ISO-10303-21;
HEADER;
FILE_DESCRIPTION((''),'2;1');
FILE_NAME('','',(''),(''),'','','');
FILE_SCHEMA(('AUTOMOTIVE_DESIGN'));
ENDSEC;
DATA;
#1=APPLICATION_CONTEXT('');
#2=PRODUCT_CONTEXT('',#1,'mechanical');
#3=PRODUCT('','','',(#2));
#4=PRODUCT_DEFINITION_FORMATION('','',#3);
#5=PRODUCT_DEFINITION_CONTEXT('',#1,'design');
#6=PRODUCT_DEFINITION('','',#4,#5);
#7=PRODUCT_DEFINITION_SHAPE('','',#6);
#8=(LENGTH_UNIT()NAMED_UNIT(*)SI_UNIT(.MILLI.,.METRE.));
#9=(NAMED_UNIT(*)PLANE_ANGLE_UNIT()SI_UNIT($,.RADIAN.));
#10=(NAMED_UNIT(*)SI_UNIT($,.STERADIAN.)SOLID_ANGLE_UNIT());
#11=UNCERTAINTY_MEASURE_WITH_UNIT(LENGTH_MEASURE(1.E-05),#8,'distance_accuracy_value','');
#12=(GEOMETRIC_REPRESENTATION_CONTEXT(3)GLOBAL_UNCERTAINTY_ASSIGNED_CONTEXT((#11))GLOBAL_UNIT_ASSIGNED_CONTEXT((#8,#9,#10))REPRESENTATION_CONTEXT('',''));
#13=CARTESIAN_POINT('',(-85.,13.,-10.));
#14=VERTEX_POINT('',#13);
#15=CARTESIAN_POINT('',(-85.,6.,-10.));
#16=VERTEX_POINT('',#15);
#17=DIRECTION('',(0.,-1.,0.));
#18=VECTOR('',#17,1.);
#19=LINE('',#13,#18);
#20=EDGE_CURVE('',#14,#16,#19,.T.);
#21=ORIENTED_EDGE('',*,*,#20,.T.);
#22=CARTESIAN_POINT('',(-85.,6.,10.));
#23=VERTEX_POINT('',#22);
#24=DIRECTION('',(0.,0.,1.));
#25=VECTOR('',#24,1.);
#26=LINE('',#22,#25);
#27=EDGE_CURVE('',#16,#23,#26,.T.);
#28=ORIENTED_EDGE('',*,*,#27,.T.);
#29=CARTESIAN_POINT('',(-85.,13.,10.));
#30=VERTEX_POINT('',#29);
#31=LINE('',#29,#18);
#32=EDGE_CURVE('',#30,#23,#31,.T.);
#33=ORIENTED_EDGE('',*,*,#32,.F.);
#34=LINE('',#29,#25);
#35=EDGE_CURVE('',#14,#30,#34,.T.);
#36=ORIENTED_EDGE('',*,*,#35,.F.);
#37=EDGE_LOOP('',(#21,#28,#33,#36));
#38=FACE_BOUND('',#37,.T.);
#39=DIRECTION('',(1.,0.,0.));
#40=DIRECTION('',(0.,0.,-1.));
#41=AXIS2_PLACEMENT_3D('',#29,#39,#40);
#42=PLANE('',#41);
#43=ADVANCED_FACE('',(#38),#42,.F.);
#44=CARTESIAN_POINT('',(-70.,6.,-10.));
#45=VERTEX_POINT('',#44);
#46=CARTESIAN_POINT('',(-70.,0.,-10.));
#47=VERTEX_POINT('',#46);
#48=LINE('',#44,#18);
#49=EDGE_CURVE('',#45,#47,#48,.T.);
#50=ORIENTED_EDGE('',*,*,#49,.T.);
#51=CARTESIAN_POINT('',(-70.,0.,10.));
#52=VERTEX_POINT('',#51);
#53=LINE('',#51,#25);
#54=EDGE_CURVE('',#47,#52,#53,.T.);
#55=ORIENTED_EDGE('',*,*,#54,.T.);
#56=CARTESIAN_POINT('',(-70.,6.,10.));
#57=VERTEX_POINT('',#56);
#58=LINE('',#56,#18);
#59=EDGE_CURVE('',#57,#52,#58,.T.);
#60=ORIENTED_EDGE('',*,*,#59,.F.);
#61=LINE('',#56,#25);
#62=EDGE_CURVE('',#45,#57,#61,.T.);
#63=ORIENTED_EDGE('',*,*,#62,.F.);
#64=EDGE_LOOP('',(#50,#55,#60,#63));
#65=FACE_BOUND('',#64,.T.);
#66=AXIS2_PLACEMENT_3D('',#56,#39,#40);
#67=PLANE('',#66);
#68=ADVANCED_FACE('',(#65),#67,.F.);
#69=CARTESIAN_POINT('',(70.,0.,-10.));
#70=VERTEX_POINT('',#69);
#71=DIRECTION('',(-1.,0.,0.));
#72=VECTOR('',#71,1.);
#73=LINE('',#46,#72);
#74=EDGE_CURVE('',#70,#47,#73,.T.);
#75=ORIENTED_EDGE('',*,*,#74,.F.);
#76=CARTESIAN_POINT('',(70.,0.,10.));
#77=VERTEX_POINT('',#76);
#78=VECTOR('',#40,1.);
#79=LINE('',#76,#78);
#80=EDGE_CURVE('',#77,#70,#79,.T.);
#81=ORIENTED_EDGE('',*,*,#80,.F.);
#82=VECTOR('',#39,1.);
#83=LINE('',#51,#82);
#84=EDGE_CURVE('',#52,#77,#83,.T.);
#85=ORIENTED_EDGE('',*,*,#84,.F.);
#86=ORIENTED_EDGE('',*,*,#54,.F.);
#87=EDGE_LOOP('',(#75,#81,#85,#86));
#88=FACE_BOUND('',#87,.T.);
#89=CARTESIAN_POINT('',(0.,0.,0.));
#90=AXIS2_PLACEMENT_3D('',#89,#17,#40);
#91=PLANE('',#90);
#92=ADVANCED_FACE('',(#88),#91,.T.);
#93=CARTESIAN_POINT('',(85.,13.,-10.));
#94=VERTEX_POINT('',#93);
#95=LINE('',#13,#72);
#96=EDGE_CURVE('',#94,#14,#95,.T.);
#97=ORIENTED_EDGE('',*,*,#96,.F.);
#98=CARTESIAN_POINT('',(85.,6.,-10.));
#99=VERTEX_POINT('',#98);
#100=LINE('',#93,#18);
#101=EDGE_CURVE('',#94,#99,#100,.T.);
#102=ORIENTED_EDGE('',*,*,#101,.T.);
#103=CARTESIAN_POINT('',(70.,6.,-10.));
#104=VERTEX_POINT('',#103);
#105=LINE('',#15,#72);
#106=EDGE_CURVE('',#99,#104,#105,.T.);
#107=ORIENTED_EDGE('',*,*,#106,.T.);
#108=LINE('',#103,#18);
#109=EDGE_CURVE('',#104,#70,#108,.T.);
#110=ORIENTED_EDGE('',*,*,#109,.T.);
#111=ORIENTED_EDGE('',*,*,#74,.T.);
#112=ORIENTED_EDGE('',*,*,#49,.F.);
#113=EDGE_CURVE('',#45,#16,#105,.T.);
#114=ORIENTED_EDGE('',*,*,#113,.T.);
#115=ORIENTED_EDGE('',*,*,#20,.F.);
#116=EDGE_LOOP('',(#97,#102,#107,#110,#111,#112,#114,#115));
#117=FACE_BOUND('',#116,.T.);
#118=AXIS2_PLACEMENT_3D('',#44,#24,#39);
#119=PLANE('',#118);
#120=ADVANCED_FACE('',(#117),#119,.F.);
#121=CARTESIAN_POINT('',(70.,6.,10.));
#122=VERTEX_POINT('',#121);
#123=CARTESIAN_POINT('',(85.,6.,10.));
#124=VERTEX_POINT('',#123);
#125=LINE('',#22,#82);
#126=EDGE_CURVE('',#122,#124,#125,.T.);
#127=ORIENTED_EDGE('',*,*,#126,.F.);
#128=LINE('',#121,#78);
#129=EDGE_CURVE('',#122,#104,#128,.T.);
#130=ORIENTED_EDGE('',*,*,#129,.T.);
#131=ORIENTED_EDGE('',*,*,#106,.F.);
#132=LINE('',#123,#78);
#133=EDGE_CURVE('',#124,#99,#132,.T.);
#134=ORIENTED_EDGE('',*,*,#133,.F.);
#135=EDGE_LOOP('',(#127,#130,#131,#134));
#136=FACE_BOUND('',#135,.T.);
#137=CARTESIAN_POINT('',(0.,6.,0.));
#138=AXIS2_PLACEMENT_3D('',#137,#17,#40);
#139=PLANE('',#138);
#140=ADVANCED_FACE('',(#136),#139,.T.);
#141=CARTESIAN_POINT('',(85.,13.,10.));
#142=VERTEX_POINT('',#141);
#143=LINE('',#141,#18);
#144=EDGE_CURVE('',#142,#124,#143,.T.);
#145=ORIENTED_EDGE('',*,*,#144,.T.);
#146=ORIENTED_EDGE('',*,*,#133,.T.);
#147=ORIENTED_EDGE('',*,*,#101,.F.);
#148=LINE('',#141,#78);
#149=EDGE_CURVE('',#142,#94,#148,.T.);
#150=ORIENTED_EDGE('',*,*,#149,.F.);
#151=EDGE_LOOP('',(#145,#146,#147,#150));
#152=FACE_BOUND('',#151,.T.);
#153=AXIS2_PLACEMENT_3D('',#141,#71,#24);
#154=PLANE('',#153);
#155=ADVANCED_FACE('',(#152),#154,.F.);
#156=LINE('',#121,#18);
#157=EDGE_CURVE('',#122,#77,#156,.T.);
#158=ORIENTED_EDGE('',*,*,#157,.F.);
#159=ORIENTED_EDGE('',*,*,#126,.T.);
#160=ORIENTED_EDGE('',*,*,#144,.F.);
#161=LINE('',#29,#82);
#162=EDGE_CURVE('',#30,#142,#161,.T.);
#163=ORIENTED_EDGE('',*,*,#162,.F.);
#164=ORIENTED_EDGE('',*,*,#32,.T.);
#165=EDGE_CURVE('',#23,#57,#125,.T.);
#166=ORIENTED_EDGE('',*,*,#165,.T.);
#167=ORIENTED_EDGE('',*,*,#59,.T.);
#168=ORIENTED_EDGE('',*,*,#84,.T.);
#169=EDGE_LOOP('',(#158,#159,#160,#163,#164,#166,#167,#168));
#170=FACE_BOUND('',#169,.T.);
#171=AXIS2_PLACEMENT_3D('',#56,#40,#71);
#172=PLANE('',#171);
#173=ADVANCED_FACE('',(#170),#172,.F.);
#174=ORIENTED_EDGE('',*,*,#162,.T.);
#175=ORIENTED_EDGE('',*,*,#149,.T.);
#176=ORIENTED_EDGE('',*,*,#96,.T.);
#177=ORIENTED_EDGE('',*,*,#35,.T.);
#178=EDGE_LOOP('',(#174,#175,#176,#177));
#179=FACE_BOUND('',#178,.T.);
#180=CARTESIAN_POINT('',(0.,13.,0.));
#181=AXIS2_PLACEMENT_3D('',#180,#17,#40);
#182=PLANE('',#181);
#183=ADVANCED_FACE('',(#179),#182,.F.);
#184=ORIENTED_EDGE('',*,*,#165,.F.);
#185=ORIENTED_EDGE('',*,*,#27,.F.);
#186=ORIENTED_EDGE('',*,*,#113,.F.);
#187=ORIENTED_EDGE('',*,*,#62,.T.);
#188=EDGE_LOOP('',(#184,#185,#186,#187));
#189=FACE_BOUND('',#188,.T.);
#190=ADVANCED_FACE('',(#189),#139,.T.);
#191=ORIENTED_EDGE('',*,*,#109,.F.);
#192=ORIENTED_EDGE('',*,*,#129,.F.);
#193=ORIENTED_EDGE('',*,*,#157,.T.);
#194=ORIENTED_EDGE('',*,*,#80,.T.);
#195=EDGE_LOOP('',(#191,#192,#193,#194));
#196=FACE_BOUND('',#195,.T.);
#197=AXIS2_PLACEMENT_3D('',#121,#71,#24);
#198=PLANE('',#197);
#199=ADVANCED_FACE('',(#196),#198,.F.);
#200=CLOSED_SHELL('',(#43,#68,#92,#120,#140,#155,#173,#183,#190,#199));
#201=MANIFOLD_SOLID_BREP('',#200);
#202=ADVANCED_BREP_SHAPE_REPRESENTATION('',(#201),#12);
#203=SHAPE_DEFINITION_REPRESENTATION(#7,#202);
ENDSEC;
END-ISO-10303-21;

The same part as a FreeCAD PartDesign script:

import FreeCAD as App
import Part
import Sketcher
from FreeCAD import Vector
Q = App.Units.Quantity


def add_polygon(sketch, points):
    """Adds a closed chain of lines whose ends are joined by coincident constraints."""
    first, n = sketch.GeometryCount, len(points)
    for a, b in zip(points, points[1:] + points[:1]):
        sketch.addGeometry(Part.LineSegment(App.Vector(*a, 0), App.Vector(*b, 0)), False)
    for i in range(n):
        sketch.addConstraint(Sketcher.Constraint("Coincident", first + i, 2, first + (i + 1) % n, 1))

doc = App.newDocument("Part")
body = doc.addObject("PartDesign::Body", "Body")

# Sketch on XZ plane
sketch1 = body.newObject("Sketcher::SketchObject", "Sketch")
sketch1.AttachmentSupport = (doc.getObject("XZ_Plane"), [""])
sketch1.MapMode = "FlatFace"
add_polygon(sketch1, [(-70, -10), (-70, 10), (70, 10), (70, -10)])  # lines 0-3
sketch1.addConstraint([
    Sketcher.Constraint("Vertical", 0),
    Sketcher.Constraint("Horizontal", 1),
    Sketcher.Constraint("Vertical", 2),
    Sketcher.Constraint("Horizontal", 3),
    Sketcher.Constraint("Symmetric", 0, 2, 2, 2, -1, 1),
    Sketcher.Constraint("DistanceX", 1, 1, 1, 2, Q("140 mm")),
    Sketcher.Constraint("DistanceY", 0, 1, 0, 2, Q("20 mm")),
])
pad1 = body.newObject("PartDesign::Pad", "Pad")
pad1.Profile = sketch1
pad1.Length = 6
pad1.Reversed = True

# Sketch on XZ plane
sketch2 = body.newObject("Sketcher::SketchObject", "Sketch001")
sketch2.AttachmentSupport = (doc.getObject("XZ_Plane"), [""])
sketch2.MapMode = "FlatFace"
sketch2.AttachmentOffset = App.Placement(Vector(0, 0, -6), App.Rotation())
add_polygon(sketch2, [(-85, -10), (-85, 10), (85, 10), (85, -10)])  # lines 0-3
sketch2.addConstraint([
    Sketcher.Constraint("Vertical", 0),
    Sketcher.Constraint("Horizontal", 1),
    Sketcher.Constraint("Vertical", 2),
    Sketcher.Constraint("Horizontal", 3),
    Sketcher.Constraint("Symmetric", 0, 2, 2, 2, -1, 1),
    Sketcher.Constraint("DistanceX", 1, 1, 1, 2, Q("170 mm")),
    Sketcher.Constraint("DistanceY", 0, 1, 0, 2, Q("20 mm")),
])
pad2 = body.newObject("PartDesign::Pad", "Pad001")
pad2.Profile = sketch2
pad2.Length = 7
pad2.Reversed = True

doc.recompute()
